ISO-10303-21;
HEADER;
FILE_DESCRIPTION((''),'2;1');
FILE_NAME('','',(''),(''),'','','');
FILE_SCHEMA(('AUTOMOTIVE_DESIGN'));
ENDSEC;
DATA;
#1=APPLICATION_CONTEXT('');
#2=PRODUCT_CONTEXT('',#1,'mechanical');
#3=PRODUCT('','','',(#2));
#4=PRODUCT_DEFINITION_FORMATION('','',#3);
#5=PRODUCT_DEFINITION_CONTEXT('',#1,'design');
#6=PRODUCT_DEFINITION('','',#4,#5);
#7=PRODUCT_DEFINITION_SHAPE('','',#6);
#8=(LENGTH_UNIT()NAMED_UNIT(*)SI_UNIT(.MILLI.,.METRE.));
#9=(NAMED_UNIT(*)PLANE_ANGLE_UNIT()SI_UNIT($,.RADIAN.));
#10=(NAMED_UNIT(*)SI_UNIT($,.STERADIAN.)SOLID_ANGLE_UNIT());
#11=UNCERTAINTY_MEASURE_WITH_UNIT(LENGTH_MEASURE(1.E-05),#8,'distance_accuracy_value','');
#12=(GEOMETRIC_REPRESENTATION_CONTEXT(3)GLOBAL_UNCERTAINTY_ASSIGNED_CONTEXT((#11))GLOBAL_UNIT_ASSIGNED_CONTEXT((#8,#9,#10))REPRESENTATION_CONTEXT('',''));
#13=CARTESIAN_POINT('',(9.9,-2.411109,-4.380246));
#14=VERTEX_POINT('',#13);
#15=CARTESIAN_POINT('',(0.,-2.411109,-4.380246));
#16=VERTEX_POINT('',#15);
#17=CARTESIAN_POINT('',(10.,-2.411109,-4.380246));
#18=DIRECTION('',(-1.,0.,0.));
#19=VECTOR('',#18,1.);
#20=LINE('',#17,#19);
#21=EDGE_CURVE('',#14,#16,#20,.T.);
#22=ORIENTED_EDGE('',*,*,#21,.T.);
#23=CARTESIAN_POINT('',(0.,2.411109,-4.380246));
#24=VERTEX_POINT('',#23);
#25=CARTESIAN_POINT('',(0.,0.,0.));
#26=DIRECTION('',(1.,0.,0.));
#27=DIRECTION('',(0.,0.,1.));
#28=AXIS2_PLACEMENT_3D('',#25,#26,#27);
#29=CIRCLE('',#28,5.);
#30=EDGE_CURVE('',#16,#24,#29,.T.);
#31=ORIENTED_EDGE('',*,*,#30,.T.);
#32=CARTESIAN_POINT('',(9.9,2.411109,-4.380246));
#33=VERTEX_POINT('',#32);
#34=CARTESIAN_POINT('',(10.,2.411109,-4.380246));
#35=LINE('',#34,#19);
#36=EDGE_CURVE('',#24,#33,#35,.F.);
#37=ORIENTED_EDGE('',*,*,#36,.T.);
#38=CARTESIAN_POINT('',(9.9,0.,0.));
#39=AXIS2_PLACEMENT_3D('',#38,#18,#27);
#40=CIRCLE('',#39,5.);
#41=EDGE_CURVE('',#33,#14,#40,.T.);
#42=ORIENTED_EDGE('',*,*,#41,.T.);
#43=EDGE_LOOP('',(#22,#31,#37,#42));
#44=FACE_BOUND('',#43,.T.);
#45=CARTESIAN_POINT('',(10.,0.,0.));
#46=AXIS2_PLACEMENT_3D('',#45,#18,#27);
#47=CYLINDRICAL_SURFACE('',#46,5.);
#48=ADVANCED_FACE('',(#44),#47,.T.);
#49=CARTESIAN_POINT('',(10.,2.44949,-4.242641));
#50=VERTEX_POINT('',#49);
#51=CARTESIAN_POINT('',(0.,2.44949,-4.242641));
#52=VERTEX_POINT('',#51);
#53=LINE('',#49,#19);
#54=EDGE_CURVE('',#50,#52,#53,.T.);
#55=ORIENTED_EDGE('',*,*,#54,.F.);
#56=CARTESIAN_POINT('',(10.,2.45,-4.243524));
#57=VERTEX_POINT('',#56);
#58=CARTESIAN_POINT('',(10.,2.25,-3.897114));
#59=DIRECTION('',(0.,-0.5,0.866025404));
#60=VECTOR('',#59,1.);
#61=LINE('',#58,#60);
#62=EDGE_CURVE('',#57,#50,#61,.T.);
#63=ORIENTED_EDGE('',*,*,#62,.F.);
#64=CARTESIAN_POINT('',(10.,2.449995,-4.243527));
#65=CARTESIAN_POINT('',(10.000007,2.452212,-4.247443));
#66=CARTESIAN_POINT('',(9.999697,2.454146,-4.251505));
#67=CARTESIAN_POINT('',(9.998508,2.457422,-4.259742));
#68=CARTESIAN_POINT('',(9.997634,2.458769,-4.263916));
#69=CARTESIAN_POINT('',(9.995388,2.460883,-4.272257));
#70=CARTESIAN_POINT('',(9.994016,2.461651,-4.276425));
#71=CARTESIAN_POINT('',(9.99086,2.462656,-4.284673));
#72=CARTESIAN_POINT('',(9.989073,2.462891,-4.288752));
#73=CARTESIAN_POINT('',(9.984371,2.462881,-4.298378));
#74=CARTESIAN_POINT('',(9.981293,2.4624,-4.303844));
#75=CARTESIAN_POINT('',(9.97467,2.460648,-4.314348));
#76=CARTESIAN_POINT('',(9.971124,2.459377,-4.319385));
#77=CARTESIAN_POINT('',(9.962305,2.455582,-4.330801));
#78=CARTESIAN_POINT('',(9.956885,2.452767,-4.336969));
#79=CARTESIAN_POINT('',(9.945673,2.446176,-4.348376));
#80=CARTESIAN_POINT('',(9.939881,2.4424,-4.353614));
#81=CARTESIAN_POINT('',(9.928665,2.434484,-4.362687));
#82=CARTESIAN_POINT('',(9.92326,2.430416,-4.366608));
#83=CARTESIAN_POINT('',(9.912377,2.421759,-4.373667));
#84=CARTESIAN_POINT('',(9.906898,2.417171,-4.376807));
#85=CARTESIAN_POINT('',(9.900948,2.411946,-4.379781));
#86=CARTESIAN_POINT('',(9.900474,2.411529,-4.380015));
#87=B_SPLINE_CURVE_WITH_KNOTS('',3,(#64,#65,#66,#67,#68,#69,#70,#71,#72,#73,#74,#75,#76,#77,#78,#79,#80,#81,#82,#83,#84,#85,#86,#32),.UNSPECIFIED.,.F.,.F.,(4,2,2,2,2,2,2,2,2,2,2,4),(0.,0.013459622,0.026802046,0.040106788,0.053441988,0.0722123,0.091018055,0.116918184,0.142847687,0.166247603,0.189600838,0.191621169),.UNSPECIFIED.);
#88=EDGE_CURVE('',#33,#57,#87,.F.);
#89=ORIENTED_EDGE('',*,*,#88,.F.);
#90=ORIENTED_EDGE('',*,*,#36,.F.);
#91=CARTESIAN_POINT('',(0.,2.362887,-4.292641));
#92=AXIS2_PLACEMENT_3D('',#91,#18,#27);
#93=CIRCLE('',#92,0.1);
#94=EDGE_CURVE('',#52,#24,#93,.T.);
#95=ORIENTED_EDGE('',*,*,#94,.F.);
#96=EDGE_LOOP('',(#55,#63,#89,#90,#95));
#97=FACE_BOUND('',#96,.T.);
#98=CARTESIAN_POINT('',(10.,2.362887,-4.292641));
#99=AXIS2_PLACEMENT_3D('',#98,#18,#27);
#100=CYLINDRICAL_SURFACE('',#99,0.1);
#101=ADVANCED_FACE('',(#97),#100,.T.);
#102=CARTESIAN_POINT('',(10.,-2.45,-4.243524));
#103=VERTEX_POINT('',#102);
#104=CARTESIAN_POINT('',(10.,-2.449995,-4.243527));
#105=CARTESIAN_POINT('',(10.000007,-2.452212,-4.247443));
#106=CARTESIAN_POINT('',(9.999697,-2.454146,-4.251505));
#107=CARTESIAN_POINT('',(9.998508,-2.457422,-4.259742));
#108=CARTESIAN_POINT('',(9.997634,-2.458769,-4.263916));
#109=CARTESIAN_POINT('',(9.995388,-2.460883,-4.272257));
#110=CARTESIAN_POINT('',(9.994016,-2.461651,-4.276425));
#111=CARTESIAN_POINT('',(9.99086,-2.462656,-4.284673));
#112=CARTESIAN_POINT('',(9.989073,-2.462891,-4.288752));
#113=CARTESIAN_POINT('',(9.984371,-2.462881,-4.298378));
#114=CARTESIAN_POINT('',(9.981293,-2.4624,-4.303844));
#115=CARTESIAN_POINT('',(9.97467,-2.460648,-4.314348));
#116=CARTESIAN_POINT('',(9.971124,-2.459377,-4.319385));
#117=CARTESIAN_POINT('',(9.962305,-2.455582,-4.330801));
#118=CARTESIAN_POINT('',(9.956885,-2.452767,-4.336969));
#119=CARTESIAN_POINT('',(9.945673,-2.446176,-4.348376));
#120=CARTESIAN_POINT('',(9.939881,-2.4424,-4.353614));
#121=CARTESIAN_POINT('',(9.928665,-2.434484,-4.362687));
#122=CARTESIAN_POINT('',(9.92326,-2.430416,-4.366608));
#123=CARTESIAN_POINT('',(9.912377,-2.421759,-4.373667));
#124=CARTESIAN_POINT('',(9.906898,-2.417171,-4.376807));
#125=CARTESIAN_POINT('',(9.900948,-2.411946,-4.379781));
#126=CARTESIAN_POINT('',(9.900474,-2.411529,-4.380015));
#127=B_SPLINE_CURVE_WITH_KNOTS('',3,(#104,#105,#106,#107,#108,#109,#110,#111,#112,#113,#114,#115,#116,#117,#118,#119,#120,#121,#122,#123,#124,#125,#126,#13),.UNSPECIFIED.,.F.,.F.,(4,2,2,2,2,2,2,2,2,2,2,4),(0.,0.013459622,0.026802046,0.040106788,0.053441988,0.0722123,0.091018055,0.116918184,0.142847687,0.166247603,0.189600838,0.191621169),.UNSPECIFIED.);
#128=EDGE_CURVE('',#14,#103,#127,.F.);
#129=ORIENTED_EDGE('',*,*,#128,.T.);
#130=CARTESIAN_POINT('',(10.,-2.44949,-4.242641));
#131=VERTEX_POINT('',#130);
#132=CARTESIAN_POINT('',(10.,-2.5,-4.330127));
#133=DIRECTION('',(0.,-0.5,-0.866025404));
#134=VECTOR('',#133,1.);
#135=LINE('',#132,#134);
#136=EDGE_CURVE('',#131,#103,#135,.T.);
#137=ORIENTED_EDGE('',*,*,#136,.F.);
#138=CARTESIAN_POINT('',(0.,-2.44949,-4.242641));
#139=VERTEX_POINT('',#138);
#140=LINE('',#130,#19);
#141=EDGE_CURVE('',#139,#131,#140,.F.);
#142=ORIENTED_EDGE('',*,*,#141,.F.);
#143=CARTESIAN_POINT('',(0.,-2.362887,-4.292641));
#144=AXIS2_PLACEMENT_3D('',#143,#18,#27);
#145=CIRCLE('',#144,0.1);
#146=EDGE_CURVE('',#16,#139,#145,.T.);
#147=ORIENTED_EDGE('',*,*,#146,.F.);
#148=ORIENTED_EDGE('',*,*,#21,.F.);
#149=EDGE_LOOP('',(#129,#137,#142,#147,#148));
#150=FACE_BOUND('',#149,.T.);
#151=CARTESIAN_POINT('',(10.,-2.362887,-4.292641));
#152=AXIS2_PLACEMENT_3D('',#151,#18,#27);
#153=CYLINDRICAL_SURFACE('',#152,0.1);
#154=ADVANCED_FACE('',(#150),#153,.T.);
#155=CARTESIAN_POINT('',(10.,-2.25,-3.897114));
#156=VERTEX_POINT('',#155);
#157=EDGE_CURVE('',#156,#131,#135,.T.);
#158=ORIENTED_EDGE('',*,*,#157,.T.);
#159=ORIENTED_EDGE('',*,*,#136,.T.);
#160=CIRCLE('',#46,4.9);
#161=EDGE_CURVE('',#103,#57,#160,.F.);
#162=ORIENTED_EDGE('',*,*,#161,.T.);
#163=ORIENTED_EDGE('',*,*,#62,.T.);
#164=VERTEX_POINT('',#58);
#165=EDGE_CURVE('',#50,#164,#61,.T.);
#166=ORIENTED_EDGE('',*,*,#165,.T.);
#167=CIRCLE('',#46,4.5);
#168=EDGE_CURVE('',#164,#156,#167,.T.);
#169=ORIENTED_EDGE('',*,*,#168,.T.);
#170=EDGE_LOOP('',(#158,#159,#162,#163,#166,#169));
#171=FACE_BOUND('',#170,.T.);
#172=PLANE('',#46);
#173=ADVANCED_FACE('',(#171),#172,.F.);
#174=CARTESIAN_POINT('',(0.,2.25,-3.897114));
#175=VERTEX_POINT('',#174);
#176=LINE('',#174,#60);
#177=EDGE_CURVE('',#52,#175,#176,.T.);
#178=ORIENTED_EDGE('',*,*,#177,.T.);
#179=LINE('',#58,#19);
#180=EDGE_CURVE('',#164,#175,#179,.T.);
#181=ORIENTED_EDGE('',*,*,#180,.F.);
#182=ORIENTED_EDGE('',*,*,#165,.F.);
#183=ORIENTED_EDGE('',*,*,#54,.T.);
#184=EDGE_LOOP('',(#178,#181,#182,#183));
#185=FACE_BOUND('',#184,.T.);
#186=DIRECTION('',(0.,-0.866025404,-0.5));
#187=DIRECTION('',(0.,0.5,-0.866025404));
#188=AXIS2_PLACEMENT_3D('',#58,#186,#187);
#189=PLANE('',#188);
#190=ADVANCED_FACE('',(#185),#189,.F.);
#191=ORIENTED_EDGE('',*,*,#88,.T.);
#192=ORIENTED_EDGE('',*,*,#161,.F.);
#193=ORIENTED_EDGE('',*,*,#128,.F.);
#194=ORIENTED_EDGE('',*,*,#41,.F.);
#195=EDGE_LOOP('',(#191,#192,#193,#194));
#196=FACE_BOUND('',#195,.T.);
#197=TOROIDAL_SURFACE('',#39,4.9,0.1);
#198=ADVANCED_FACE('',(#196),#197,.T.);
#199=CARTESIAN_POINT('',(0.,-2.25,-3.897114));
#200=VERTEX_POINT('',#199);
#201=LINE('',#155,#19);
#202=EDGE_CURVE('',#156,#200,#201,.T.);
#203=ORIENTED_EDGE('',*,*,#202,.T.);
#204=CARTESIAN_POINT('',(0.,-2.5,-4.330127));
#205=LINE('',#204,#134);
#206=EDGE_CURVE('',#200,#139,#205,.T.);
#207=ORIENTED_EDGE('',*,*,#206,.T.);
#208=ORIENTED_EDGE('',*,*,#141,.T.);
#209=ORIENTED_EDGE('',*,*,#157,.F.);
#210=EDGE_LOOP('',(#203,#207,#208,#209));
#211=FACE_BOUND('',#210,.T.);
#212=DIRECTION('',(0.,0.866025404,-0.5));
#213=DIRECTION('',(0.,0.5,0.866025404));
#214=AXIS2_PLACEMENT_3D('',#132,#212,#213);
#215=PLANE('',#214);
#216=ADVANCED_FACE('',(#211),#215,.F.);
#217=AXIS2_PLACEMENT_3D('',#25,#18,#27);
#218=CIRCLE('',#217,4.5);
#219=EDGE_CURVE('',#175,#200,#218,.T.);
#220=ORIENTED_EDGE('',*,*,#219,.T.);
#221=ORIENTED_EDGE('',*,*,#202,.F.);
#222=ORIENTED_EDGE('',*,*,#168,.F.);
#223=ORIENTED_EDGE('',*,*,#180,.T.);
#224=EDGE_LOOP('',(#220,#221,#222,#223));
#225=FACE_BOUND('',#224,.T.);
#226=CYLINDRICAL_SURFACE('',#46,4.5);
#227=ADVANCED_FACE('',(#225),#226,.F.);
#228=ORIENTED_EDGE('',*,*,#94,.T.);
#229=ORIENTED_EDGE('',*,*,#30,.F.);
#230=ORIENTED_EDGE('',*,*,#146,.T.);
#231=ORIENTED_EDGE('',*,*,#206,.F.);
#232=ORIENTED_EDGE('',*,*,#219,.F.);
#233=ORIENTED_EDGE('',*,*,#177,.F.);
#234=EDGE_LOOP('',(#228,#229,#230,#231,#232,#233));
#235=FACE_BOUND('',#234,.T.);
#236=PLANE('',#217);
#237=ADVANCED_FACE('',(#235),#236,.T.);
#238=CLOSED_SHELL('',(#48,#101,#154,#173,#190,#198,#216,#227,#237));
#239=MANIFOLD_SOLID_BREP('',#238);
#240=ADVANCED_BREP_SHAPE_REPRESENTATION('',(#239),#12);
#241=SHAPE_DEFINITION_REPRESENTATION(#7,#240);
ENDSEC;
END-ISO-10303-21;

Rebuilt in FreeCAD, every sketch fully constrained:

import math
import FreeCAD as App
import Part
import Sketcher
Q = App.Units.Quantity


def edges_at(feature, points):
    """Names of the edges that pass closest to the given points."""
    edges = feature.Shape.Edges
    near = lambda p: min(range(len(edges)), key=lambda i: edges[i].distToShape(Part.Vertex(*p))[0])
    return sorted({f"Edge{near(p) + 1}" for p in points})

doc = App.newDocument("Part")
body = doc.addObject("PartDesign::Body", "Body")

# Sketch on YZ plane
sketch1 = body.newObject("Sketcher::SketchObject", "Sketch")
sketch1.AttachmentSupport = (doc.getObject("YZ_Plane"), [""])
sketch1.MapMode = "FlatFace"
sketch1.addGeometry([
    Part.LineSegment(App.Vector(2.5, -4.330127, 0), App.Vector(2.25, -3.897114, 0)),
    Part.ArcOfCircle(Part.Circle(App.Vector(0, 0, 0), App.Vector(0, 0, 1), 4.5), math.radians(-120), math.radians(-60)),
    Part.LineSegment(App.Vector(-2.25, -3.897114, 0), App.Vector(-2.5, -4.330127, 0)),
    Part.ArcOfCircle(Part.Circle(App.Vector(0, 0, 0), App.Vector(0, 0, 1), 5), math.radians(-120), math.radians(-60)),
], False)
sketch1.addConstraint([
    Sketcher.Constraint("Coincident", 0, 2, 1, 2),
    Sketcher.Constraint("Coincident", 1, 1, 2, 1),
    Sketcher.Constraint("Coincident", 2, 2, 3, 1),
    Sketcher.Constraint("Coincident", 3, 2, 0, 1),
    Sketcher.Constraint("Coincident", 1, 3, -1, 1),
    Sketcher.Constraint("Coincident", 3, 3, -1, 1),
    Sketcher.Constraint("Horizontal", 0, 2, 1, 1),
    Sketcher.Constraint("Horizontal", 2, 2, 3, 2),
    Sketcher.Constraint("Radius", 3, Q("5 mm")),
    Sketcher.Constraint("Radius", 1, Q("4.5 mm")),
    Sketcher.Constraint("Angle", 0, Q("120 deg")),
    Sketcher.Constraint("DistanceX", 2, 2, 3, 2, Q("5 mm")),
])
pad1 = body.newObject("PartDesign::Pad", "Pad")
pad1.Profile = sketch1
pad1.Length = 10
doc.recompute()

fillet = body.newObject("PartDesign::Fillet", "Fillet")
fillet.Base = (pad1, edges_at(pad1, [(10, 0, -5), (5, 2.5, -4.33), (5, -2.5, -4.33)]))
fillet.Radius = 0.1

doc.recompute()
